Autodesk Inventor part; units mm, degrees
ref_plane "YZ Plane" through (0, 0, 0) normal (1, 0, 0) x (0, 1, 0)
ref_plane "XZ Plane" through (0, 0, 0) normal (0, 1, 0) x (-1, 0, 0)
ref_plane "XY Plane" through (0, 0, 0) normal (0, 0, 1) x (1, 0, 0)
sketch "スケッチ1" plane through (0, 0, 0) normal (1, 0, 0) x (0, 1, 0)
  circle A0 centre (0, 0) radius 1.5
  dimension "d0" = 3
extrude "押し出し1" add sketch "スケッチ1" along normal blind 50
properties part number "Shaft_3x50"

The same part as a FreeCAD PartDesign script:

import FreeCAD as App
import Part
import Sketcher

V = App.Vector
Q = App.Units.Quantity

doc = App.newDocument("Part")
body = doc.addObject("PartDesign::Body", "Body")

# Sketch on YZ plane
sketch1 = body.newObject("Sketcher::SketchObject", "Sketch")
sketch1.AttachmentSupport = (doc.getObject("YZ_Plane"), [""])
sketch1.MapMode = "FlatFace"
sketch1.addGeometry(Part.Circle(V(0, 0, 0), V(0, 0, 1), 1.5), False)
sketch1.addConstraint([
    Sketcher.Constraint("Coincident", 0, 3, -1, 1),
    Sketcher.Constraint("Diameter", 0, Q("3 mm")),
])
pad1 = body.newObject("PartDesign::Pad", "Pad")
pad1.Profile = sketch1
pad1.Length = 50

doc.recompute()
